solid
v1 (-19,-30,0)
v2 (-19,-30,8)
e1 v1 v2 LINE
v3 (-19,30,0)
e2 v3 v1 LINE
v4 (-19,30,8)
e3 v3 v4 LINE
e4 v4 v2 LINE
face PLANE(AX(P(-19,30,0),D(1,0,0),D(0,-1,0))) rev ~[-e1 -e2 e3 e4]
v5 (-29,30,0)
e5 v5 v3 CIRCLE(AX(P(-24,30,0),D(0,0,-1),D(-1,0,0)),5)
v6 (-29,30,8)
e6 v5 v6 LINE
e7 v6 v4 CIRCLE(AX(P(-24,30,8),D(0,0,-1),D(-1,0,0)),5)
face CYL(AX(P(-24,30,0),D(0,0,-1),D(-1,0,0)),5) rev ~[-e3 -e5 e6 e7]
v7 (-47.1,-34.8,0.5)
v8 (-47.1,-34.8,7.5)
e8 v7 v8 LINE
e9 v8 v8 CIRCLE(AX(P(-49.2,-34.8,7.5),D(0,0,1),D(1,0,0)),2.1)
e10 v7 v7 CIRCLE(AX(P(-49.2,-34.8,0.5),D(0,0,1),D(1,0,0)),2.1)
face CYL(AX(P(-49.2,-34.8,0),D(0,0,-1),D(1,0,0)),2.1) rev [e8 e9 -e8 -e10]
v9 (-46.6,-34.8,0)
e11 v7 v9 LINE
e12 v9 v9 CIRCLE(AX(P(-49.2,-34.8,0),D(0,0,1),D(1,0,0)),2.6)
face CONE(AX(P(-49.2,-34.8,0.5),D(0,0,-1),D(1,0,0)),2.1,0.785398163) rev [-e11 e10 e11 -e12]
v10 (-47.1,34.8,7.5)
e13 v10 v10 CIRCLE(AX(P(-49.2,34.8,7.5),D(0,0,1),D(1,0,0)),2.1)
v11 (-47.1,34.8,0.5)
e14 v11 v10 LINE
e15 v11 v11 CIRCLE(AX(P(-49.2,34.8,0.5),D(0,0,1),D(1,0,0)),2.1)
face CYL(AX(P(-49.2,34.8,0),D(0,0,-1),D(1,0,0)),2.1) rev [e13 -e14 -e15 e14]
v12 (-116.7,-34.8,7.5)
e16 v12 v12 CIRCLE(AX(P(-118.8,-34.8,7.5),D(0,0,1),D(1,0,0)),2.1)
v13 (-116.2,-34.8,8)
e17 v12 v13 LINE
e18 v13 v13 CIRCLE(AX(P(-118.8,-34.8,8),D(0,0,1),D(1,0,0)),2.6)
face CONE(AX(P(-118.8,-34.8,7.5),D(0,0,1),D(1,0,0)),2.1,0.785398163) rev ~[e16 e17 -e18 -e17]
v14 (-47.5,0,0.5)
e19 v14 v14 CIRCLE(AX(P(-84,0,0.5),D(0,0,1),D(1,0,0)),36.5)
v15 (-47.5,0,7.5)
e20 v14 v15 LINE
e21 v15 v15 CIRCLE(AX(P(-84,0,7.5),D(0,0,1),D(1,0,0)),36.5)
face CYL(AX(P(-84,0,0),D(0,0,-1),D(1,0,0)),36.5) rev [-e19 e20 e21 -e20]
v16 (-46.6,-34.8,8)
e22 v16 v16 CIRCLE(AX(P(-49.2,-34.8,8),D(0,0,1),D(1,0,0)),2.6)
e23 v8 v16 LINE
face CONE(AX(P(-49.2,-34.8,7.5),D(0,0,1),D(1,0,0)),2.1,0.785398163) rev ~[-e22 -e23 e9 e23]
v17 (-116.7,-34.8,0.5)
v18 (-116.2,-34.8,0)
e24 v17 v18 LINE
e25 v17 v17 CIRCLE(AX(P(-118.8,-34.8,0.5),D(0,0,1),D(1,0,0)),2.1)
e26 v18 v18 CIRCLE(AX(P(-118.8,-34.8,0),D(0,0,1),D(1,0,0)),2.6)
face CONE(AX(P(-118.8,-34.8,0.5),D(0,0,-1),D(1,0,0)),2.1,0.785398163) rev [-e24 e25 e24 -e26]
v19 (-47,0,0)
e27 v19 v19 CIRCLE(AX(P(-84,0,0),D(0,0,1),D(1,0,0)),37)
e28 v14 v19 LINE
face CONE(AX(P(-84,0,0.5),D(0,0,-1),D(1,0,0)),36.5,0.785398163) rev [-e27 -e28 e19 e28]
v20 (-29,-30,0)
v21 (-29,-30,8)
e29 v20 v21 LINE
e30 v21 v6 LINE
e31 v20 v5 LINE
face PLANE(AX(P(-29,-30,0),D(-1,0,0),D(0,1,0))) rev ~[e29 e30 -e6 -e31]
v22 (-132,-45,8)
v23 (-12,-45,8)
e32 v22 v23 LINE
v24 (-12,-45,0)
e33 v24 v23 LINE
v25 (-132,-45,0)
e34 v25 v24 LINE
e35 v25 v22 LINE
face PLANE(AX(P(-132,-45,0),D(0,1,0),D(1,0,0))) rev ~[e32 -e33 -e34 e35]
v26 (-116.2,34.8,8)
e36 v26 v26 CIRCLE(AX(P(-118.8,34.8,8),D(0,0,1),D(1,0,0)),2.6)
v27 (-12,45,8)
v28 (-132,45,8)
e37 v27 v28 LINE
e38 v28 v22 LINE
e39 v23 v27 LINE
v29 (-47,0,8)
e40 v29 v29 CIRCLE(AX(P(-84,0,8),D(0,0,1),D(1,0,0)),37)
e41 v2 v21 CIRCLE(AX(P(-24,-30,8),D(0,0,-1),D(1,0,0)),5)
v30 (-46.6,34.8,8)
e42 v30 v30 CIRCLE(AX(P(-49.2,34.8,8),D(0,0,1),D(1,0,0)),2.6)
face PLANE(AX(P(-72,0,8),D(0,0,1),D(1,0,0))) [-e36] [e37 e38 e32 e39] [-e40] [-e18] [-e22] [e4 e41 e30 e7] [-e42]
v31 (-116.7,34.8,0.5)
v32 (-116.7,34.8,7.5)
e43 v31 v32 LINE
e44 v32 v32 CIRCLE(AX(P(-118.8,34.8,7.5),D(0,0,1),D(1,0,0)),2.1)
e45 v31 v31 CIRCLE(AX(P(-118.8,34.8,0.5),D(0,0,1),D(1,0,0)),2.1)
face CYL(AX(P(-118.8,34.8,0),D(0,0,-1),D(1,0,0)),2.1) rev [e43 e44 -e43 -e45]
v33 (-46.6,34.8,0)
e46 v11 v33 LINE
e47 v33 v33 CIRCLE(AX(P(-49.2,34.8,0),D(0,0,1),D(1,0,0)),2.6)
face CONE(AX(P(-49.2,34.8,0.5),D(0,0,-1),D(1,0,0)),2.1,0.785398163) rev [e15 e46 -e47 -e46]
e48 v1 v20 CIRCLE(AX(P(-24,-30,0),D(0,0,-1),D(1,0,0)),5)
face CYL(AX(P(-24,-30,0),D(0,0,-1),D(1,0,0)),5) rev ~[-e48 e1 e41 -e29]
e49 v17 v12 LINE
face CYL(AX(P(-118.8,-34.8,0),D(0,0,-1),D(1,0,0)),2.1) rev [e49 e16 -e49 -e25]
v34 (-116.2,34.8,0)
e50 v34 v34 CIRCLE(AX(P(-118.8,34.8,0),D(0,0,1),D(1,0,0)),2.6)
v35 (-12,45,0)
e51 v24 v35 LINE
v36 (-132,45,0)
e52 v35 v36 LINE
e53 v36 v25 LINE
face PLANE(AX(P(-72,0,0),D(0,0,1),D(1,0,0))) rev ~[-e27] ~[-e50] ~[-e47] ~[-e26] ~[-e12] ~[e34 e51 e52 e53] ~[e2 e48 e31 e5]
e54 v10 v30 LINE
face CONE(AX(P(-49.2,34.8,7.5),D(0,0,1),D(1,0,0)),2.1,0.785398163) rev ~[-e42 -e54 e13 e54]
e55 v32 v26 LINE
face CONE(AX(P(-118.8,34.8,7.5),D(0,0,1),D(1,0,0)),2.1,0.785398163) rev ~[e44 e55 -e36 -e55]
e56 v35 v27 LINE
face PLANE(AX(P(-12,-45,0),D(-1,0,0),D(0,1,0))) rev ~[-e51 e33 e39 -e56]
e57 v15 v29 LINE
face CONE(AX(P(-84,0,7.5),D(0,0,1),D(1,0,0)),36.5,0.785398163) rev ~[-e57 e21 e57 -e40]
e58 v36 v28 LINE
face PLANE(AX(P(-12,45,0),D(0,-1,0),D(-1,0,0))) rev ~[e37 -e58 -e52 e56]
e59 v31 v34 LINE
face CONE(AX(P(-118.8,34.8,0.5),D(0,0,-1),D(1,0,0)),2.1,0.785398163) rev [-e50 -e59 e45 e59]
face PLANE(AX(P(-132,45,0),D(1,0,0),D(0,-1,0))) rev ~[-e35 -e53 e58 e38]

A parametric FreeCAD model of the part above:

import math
import FreeCAD as App
import Part
import Sketcher
Q = App.Units.Quantity


def edges_at(feature, points):
    """Names of the edges that pass closest to the given points."""
    edges = feature.Shape.Edges
    near = lambda p: min(range(len(edges)), key=lambda i: edges[i].distToShape(Part.Vertex(*p))[0])
    return sorted({f"Edge{near(p) + 1}" for p in points})


def add_polygon(sketch, points):
    """Adds a closed chain of lines whose ends are joined by coincident constraints."""
    first, n = sketch.GeometryCount, len(points)
    for a, b in zip(points, points[1:] + points[:1]):
        sketch.addGeometry(Part.LineSegment(App.Vector(*a, 0), App.Vector(*b, 0)), False)
    for i in range(n):
        sketch.addConstraint(Sketcher.Constraint("Coincident", first + i, 2, first + (i + 1) % n, 1))

doc = App.newDocument("Part")
params = doc.addObject("Spreadsheet::Sheet", "Params")
for row, (alias, value) in enumerate([
    ("sketch1_diameter", "73 mm"),
    ("sketch1_radius", "5 mm"),
    ("sketch1_diameter2", "4.2 mm"),
    ("sketch1_width", "120 mm"),
    ("sketch1_height", "90 mm"),
    ("pad1_length", "8 mm"),
    ("chamfer_size", "0.5 mm"),
], start=1):
    params.set(f"A{row}", alias)
    params.set(f"B{row}", "=" + value)
    params.setAlias(f"B{row}", alias)

body = doc.addObject("PartDesign::Body", "Body")

# Sketch on XY plane
sketch1 = body.newObject("Sketcher::SketchObject", "Sketch")
sketch1.AttachmentSupport = (doc.getObject("XY_Plane"), [""])
sketch1.MapMode = "FlatFace"
add_polygon(sketch1, [(-132, 45), (-132, -45), (-12, -45), (-12, 45)])  # lines 0-3
sketch1.addGeometry(Part.Circle(App.Vector(-118.8, -34.8, 0), App.Vector(0, 0, 1), 2.1), False)  # 4
sketch1.addGeometry(Part.Circle(App.Vector(-49.2, -34.8, 0), App.Vector(0, 0, 1), 2.1), False)  # 5
sketch1.addGeometry(Part.Circle(App.Vector(-84, 0, 0), App.Vector(0, 0, 1), 36.5), False)  # 6
sketch1.addGeometry(Part.Circle(App.Vector(-118.8, 34.8, 0), App.Vector(0, 0, 1), 2.1), False)  # 7
sketch1.addGeometry(Part.LineSegment(App.Vector(-29, -30, 0), App.Vector(-29, 30, 0)), False)  # 8
sketch1.addGeometry(Part.ArcOfCircle(Part.Circle(App.Vector(-24, 30, 0), App.Vector(0, 0, 1), 5), math.radians(0), math.radians(180)), False)  # 9
sketch1.addGeometry(Part.LineSegment(App.Vector(-19, 30, 0), App.Vector(-19, -30, 0)), False)  # 10
sketch1.addGeometry(Part.ArcOfCircle(Part.Circle(App.Vector(-24, -30, 0), App.Vector(0, 0, 1), 5), math.radians(180), math.radians(360)), False)  # 11
sketch1.addGeometry(Part.Circle(App.Vector(-49.2, 34.8, 0), App.Vector(0, 0, 1), 2.1), False)  # 12
sketch1.addConstraint([
    Sketcher.Constraint("Tangent", 8, 2, 9, 2),
    Sketcher.Constraint("Tangent", 9, 1, 10, 1),
    Sketcher.Constraint("Tangent", 10, 2, 11, 2),
    Sketcher.Constraint("Tangent", 11, 1, 8, 1),
    Sketcher.Constraint("Vertical", 0),
    Sketcher.Constraint("Horizontal", 1),
    Sketcher.Constraint("Vertical", 2),
    Sketcher.Constraint("Horizontal", 3),
    Sketcher.Constraint("Vertical", 8),
    Sketcher.Constraint("Vertical", 10),
    Sketcher.Constraint("Equal", 4, 5),
    Sketcher.Constraint("Equal", 5, 7),
    Sketcher.Constraint("Equal", 7, 12),
    Sketcher.Constraint("Symmetric", 4, 3, 7, 3, -1),
    Sketcher.Constraint("Symmetric", 5, 3, 12, 3, -1),
    Sketcher.Constraint("PointOnObject", 6, 3, -1),
    Sketcher.Constraint("Horizontal", 4, 3, 5, 3),
    Sketcher.Constraint("Diameter", 6, Q("73 mm")),
    Sketcher.Constraint("Radius", 9, Q("5 mm")),
    Sketcher.Constraint("Diameter", 4, Q("4.2 mm")),
    Sketcher.Constraint("DistanceX", 1, 1, 1, 2, Q("120 mm")),
    Sketcher.Constraint("DistanceY", 0, 2, 0, 1, Q("90 mm")),
    Sketcher.Constraint("DistanceY", 8, 1, 8, 2, Q("60 mm")),
    Sketcher.Constraint("DistanceX", 6, 3, -1, 1, Q("84 mm")),
    Sketcher.Constraint("DistanceX", 9, 3, -1, 1, Q("24 mm")),
    Sketcher.Constraint("DistanceY", -1, 1, 9, 3, Q("30 mm")),
    Sketcher.Constraint("DistanceX", 0, 2, -1, 1, Q("132 mm")),
    Sketcher.Constraint("DistanceY", 0, 2, -1, 1, Q("45 mm")),
    Sketcher.Constraint("DistanceX", 4, 3, -1, 1, Q("118.8 mm")),
    Sketcher.Constraint("DistanceY", 4, 3, -1, 1, Q("34.8 mm")),
    Sketcher.Constraint("DistanceX", 5, 3, -1, 1, Q("49.2 mm")),
])
sketch1.setExpression("Constraints[21]", "Params.sketch1_diameter")
sketch1.setExpression("Constraints[22]", "Params.sketch1_radius")
sketch1.setExpression("Constraints[23]", "Params.sketch1_diameter2")
sketch1.setExpression("Constraints[24]", "Params.sketch1_width")
sketch1.setExpression("Constraints[25]", "Params.sketch1_height")
pad1 = body.newObject("PartDesign::Pad", "Pad")
pad1.Profile = sketch1
pad1.setExpression("Length", "Params.pad1_length")
doc.recompute()

chamfer = body.newObject("PartDesign::Chamfer", "Chamfer")
chamfer.Base = (pad1, edges_at(pad1, [
    (-47.5, 0, 4),
    (-120.5, 0, 0),
    (-120.5, 0, 8),
    (-116.7, -34.8, 4),
    (-120.9, -34.8, 0),
    (-120.9, -34.8, 8),
    (-116.7, 34.8, 4),
    (-120.9, 34.8, 0),
    (-120.9, 34.8, 8),
    (-47.1, 34.8, 4),
    (-51.3, 34.8, 0),
    (-51.3, 34.8, 8),
    (-47.1, -34.8, 4),
    (-51.3, -34.8, 0),
    (-51.3, -34.8, 8),
]))
chamfer.setExpression("Size", "Params.chamfer_size")

doc.recompute()
